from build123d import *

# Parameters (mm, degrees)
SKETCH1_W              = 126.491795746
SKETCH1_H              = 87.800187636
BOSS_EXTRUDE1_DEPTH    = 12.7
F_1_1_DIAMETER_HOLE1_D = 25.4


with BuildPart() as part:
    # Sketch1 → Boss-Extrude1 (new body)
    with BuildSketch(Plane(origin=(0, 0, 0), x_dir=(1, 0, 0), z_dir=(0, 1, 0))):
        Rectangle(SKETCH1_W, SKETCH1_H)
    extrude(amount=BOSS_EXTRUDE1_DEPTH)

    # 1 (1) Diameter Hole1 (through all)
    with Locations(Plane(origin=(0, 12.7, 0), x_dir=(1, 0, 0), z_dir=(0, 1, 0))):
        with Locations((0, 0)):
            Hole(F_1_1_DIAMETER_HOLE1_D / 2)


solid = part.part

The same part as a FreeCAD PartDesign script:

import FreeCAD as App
import Part
import Sketcher
from FreeCAD import Vector
Q = App.Units.Quantity

doc = App.newDocument("Part")
body = doc.addObject("PartDesign::Body", "Body")

# Sketch on XZ plane
sketch1 = body.newObject("Sketcher::SketchObject", "Sketch")
sketch1.AttachmentSupport = (doc.getObject("XZ_Plane"), [""])
sketch1.MapMode = "FlatFace"
sketch1.addGeometry([
    Part.LineSegment(Vector(-63, -44, 0), Vector(-63, 44, 0)),
    Part.LineSegment(Vector(-63, 44, 0), Vector(63, 44, 0)),
    Part.LineSegment(Vector(63, 44, 0), Vector(63, -44, 0)),
    Part.LineSegment(Vector(63, -44, 0), Vector(-63, -44, 0)),
], False)
sketch1.addConstraint([
    Sketcher.Constraint("Coincident", 0, 2, 1, 1),
    Sketcher.Constraint("Coincident", 1, 2, 2, 1),
    Sketcher.Constraint("Coincident", 2, 2, 3, 1),
    Sketcher.Constraint("Coincident", 3, 2, 0, 1),
    Sketcher.Constraint("Vertical", 0),
    Sketcher.Constraint("Horizontal", 1),
    Sketcher.Constraint("Vertical", 2),
    Sketcher.Constraint("Horizontal", 3),
    Sketcher.Constraint("Symmetric", 0, 2, 2, 2, -1, 1),
    Sketcher.Constraint("DistanceX", 1, 1, 1, 2, 126.491796),
    Sketcher.Constraint("DistanceY", 0, 1, 0, 2, 87.800188),
])
pad1 = body.newObject("PartDesign::Pad", "Pad")
pad1.Profile = sketch1
pad1.Length = Q("0.5 in")
pad1.Reversed = True

# Sketch on XZ plane
sketch2 = body.newObject("Sketcher::SketchObject", "Sketch001")
sketch2.AttachmentSupport = (doc.getObject("XZ_Plane"), [""])
sketch2.MapMode = "FlatFace"
sketch2.AttachmentOffset = App.Placement(Vector(0, 0, -0.5 * 25.4), App.Rotation())
sketch2.addGeometry(Part.Circle(Vector(0, 0, 0), Vector(0, 0, 1), 13), False)
sketch2.addConstraint([
    Sketcher.Constraint("Coincident", 0, 3, -1, 1),
    Sketcher.Constraint("Diameter", 0, Q("1 in")),
])
doc.recompute()
hole = body.newObject("PartDesign::Hole", "Hole")
hole.Profile = sketch2
hole.ThreadType = "None"
hole.Diameter = Q("1 in")
hole.DepthType = "ThroughAll"
hole.Reversed = True

doc.recompute()
